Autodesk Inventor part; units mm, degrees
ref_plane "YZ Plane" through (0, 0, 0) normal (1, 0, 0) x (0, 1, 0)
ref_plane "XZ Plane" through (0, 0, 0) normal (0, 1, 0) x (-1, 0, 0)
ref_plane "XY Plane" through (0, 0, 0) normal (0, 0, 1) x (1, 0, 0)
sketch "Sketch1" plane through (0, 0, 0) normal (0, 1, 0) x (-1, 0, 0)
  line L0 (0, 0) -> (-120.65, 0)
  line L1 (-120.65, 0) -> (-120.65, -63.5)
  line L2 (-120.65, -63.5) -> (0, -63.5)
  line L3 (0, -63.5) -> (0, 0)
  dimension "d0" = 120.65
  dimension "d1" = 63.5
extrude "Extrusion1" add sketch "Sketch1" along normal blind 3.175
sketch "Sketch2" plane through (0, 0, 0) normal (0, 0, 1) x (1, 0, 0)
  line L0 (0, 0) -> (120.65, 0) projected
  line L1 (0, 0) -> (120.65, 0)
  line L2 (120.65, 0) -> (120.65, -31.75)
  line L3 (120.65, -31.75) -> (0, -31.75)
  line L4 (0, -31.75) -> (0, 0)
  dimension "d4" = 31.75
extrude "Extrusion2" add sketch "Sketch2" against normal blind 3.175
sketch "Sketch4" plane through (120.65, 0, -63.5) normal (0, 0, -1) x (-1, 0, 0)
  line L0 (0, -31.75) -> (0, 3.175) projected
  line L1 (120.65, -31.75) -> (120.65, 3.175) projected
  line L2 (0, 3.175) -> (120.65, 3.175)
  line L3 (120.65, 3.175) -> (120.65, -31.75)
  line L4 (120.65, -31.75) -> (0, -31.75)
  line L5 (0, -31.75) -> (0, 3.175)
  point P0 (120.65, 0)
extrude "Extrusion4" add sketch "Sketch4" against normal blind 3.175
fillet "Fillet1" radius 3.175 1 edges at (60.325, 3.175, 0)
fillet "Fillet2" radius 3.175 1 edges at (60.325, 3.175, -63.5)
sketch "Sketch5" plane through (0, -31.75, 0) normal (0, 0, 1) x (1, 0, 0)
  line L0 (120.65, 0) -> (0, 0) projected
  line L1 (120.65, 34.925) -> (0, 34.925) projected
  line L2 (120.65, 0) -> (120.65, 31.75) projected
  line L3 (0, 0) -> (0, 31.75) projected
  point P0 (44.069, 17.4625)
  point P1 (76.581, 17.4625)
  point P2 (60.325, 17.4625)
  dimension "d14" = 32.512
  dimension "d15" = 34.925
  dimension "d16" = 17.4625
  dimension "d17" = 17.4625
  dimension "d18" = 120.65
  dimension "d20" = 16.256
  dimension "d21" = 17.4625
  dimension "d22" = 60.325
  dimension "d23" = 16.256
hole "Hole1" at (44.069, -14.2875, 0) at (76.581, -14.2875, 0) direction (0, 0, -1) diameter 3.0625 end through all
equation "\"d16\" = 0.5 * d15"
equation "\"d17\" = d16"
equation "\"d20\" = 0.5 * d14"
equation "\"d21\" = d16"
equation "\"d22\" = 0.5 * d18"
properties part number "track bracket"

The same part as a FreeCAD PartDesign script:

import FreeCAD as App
import Part
import Sketcher

V = App.Vector
Q = App.Units.Quantity


def edges_at(feature, points):
    """Names of the edges that pass closest to the given points."""
    edges = feature.Shape.Edges
    near = lambda p: min(range(len(edges)), key=lambda i: edges[i].distToShape(Part.Vertex(*p))[0])
    return sorted({f"Edge{near(p) + 1}" for p in points})

doc = App.newDocument("Part")
body = doc.addObject("PartDesign::Body", "Body")

sketch1 = body.newObject("Sketcher::SketchObject", "Sketch")
sketch1.AttachmentSupport = (doc.getObject("XZ_Plane"), [""])
sketch1.MapMode = "FlatFace"
sketch1.addGeometry(Part.LineSegment(V(0, -63.5, 0), V(0, 0, 0)), False)
sketch1.addGeometry(Part.LineSegment(V(0, 0, 0), V(120.65, 0, 0)), False)
sketch1.addGeometry(Part.LineSegment(V(120.65, 0, 0), V(120.65, -63.5, 0)), False)
sketch1.addGeometry(Part.LineSegment(V(120.65, -63.5, 0), V(0, -63.5, 0)), False)
sketch1.addConstraint(Sketcher.Constraint("Coincident", 0, 2, 1, 1))
sketch1.addConstraint(Sketcher.Constraint("Coincident", 1, 2, 2, 1))
sketch1.addConstraint(Sketcher.Constraint("Coincident", 2, 2, 3, 1))
sketch1.addConstraint(Sketcher.Constraint("Coincident", 3, 2, 0, 1))
sketch1.addConstraint(Sketcher.Constraint("Vertical", 0))
sketch1.addConstraint(Sketcher.Constraint("Horizontal", 1))
sketch1.addConstraint(Sketcher.Constraint("Vertical", 2))
sketch1.addConstraint(Sketcher.Constraint("Horizontal", 3))
sketch1.addConstraint(Sketcher.Constraint("Coincident", 0, 2, -1, 1))
sketch1.addConstraint(Sketcher.Constraint("DistanceY", 0, 1, 0, 2, Q("2.5 in")))
sketch1.addConstraint(Sketcher.Constraint("DistanceX", 1, 1, 1, 2, Q("4.75 in")))
pad1 = body.newObject("PartDesign::Pad", "Pad")
pad1.Profile = sketch1
pad1.Length = Q("0.125 in")
pad1.Reversed = True

sketch2 = body.newObject("Sketcher::SketchObject", "Sketch001")
sketch2.AttachmentSupport = (doc.getObject("XY_Plane"), [""])
sketch2.MapMode = "FlatFace"
sketch2.addGeometry(Part.LineSegment(V(120.65, 0, 0), V(0, 0, 0)), False)
sketch2.addGeometry(Part.LineSegment(V(0, 0, 0), V(0, -31.75, 0)), False)
sketch2.addGeometry(Part.LineSegment(V(0, -31.75, 0), V(120.65, -31.75, 0)), False)
sketch2.addGeometry(Part.LineSegment(V(120.65, -31.75, 0), V(120.65, 0, 0)), False)
sketch2.addConstraint(Sketcher.Constraint("Coincident", 0, 2, 1, 1))
sketch2.addConstraint(Sketcher.Constraint("Coincident", 1, 2, 2, 1))
sketch2.addConstraint(Sketcher.Constraint("Coincident", 2, 2, 3, 1))
sketch2.addConstraint(Sketcher.Constraint("Coincident", 3, 2, 0, 1))
sketch2.addConstraint(Sketcher.Constraint("Horizontal", 0))
sketch2.addConstraint(Sketcher.Constraint("Vertical", 1))
sketch2.addConstraint(Sketcher.Constraint("Horizontal", 2))
sketch2.addConstraint(Sketcher.Constraint("Vertical", 3))
sketch2.addConstraint(Sketcher.Constraint("Coincident", 0, 2, -1, 1))
sketch2.addConstraint(Sketcher.Constraint("DistanceY", 1, 2, 1, 1, Q("1.25 in")))
sketch2.addConstraint(Sketcher.Constraint("DistanceX", 0, 2, 0, 1, Q("4.75 in")))
pad2 = body.newObject("PartDesign::Pad", "Pad001")
pad2.Profile = sketch2
pad2.Length = Q("0.125 in")
pad2.Reversed = True

sketch3 = body.newObject("Sketcher::SketchObject", "Sketch002")
sketch3.AttachmentSupport = (doc.getObject("XY_Plane"), [""])
sketch3.MapMode = "FlatFace"
sketch3.AttachmentOffset = App.Placement(V(0, 0, -2.5 * 25.4), App.Rotation())
sketch3.addGeometry(Part.LineSegment(V(120.65, 3.175, 0), V(120.65, -31.75, 0)), False)
sketch3.addGeometry(Part.LineSegment(V(120.65, -31.75, 0), V(0, -31.75, 0)), False)
sketch3.addGeometry(Part.LineSegment(V(0, -31.75, 0), V(0, 3.175, 0)), False)
sketch3.addGeometry(Part.LineSegment(V(0, 3.175, 0), V(120.65, 3.175, 0)), False)
sketch3.addConstraint(Sketcher.Constraint("Coincident", 0, 2, 1, 1))
sketch3.addConstraint(Sketcher.Constraint("Coincident", 1, 2, 2, 1))
sketch3.addConstraint(Sketcher.Constraint("Coincident", 2, 2, 3, 1))
sketch3.addConstraint(Sketcher.Constraint("Coincident", 3, 2, 0, 1))
sketch3.addConstraint(Sketcher.Constraint("Vertical", 0))
sketch3.addConstraint(Sketcher.Constraint("Horizontal", 1))
sketch3.addConstraint(Sketcher.Constraint("Vertical", 2))
sketch3.addConstraint(Sketcher.Constraint("Horizontal", 3))
sketch3.addConstraint(Sketcher.Constraint("PointOnObject", 1, 2, -2))
sketch3.addConstraint(Sketcher.Constraint("DistanceX", 1, 2, 1, 1, Q("4.75 in")))
sketch3.addConstraint(Sketcher.Constraint("DistanceY", 0, 2, 0, 1, Q("1.375 in")))
sketch3.addConstraint(Sketcher.Constraint("DistanceY", 0, 2, -1, 1, Q("1.25 in")))
pad3 = body.newObject("PartDesign::Pad", "Pad002")
pad3.Profile = sketch3
pad3.Length = Q("0.125 in")
doc.recompute()

fillet = body.newObject("PartDesign::Fillet", "Fillet")
fillet.Base = (pad3, edges_at(pad3, [(60.325, 3.175, 0)]))
fillet.Radius = Q("0.125 in")
doc.recompute()

fillet2 = body.newObject("PartDesign::Fillet", "Fillet001")
fillet2.Base = (fillet, edges_at(fillet, [(60.325, 3.175, -63.5)]))
fillet2.Radius = Q("0.125 in")

sketch4 = body.newObject("Sketcher::SketchObject", "Sketch003")
sketch4.AttachmentSupport = (doc.getObject("XY_Plane"), [""])
sketch4.MapMode = "FlatFace"
sketch4.addGeometry(Part.Circle(V(44.069, -14.2875, 0), V(0, 0, 1), 1.53125), False)
sketch4.addGeometry(Part.Circle(V(76.581, -14.2875, 0), V(0, 0, 1), 1.53125), False)
sketch4.addConstraint(Sketcher.Constraint("Equal", 0, 1))
sketch4.addConstraint(Sketcher.Constraint("Horizontal", 0, 3, 1, 3))
sketch4.addConstraint(Sketcher.Constraint("Diameter", 0, Q("3.0625 mm")))
sketch4.addConstraint(Sketcher.Constraint("DistanceX", 0, 3, 1, 3, Q("1.28 in")))
sketch4.addConstraint(Sketcher.Constraint("DistanceX", -1, 1, 0, 3, Q("1.735 in")))
sketch4.addConstraint(Sketcher.Constraint("DistanceY", 0, 3, -1, 1, Q("0.5625 in")))
doc.recompute()
hole = body.newObject("PartDesign::Hole", "Hole")
hole.Profile = sketch4
hole.ThreadType = "None"
hole.Diameter = 3.0625
hole.DepthType = "ThroughAll"

doc.recompute()
